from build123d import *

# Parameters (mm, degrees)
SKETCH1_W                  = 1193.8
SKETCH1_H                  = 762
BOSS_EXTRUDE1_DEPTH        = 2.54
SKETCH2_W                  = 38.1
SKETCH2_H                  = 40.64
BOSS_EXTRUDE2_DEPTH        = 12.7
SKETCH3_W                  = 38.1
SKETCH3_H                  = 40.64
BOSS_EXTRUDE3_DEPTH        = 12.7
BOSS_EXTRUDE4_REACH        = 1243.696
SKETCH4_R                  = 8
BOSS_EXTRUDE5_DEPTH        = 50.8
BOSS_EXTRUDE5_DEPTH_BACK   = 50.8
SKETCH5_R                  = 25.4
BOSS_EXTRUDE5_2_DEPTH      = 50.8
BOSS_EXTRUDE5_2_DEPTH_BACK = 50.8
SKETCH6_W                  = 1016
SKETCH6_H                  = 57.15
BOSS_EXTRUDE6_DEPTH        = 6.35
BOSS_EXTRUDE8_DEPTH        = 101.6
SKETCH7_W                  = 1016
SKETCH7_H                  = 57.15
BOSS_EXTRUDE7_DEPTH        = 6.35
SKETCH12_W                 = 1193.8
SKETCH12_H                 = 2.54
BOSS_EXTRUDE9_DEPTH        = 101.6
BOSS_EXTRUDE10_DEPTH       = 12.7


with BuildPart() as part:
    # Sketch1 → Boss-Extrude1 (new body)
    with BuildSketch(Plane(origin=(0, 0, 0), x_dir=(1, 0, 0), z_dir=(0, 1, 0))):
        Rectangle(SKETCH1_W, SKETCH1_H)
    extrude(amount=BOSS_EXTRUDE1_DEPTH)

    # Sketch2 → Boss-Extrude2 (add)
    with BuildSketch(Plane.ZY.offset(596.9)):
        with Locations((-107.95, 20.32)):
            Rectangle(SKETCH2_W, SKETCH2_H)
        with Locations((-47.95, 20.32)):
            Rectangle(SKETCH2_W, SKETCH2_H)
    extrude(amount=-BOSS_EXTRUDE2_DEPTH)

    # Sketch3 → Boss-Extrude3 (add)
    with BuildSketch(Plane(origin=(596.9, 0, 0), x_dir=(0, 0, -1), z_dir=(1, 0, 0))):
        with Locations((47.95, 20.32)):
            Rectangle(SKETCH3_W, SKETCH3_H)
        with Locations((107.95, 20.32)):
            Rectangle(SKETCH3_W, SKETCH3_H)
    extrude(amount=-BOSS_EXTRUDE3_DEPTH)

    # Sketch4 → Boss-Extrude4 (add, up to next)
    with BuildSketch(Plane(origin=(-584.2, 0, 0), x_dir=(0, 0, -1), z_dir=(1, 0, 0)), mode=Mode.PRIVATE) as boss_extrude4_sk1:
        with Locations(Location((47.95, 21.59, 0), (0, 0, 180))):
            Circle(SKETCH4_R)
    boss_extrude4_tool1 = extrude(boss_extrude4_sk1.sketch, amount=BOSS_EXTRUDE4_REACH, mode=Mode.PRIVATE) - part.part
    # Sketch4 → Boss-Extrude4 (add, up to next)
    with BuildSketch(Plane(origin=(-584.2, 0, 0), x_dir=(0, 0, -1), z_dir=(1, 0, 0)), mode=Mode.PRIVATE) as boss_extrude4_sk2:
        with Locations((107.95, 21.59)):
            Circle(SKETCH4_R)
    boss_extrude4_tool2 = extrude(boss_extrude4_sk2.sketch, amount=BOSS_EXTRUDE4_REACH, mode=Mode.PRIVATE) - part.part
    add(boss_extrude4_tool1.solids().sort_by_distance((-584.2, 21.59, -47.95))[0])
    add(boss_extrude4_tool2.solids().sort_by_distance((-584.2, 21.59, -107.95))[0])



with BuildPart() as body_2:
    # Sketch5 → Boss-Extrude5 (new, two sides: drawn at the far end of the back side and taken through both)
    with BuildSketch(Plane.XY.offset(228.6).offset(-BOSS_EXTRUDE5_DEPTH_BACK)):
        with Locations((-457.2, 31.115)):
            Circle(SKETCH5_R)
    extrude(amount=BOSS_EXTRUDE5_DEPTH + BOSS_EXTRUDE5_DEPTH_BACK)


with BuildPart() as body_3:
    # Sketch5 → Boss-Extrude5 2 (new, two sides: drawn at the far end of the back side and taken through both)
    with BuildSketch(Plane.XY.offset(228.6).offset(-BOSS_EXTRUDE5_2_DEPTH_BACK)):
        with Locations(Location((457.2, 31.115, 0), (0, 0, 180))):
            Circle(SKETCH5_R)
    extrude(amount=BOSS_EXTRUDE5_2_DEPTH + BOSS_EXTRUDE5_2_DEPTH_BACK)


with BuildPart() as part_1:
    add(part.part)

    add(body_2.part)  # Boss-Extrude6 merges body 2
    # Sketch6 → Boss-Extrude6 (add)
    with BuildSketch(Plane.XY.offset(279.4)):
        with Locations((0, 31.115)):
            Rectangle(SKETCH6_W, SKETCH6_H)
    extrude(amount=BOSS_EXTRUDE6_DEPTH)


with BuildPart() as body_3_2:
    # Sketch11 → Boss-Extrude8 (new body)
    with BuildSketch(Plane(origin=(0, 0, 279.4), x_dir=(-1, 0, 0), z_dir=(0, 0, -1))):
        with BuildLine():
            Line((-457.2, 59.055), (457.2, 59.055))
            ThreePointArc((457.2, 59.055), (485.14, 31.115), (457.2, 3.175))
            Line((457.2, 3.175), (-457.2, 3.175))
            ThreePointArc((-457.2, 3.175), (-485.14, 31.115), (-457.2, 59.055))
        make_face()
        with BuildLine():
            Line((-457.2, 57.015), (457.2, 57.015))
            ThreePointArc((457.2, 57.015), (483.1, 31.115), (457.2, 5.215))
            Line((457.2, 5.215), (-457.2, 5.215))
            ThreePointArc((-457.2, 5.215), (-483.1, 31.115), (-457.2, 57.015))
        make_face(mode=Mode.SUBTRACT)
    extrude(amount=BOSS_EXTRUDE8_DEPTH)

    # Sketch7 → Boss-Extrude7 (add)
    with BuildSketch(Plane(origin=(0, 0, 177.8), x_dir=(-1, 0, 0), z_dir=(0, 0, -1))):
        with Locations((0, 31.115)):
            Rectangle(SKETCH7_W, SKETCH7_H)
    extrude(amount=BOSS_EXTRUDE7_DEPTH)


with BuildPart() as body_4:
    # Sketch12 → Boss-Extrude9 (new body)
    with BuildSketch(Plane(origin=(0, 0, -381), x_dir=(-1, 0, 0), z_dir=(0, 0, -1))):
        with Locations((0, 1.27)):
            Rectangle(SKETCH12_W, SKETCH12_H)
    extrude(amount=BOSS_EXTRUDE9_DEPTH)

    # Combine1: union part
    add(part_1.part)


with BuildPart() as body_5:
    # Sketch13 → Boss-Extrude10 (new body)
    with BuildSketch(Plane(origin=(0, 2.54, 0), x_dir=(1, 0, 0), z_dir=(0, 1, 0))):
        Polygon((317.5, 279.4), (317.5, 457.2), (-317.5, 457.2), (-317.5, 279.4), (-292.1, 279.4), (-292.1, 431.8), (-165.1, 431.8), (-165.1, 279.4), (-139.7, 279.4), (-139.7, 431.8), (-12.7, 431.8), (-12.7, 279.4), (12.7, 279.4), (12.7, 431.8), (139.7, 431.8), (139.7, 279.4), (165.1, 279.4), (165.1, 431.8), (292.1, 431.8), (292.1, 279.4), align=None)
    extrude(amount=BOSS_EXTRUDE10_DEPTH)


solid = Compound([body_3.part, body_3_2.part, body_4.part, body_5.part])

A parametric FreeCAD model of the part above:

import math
import FreeCAD as App
import Part
import Sketcher
Q = App.Units.Quantity

doc = App.newDocument("Part")
body = doc.addObject("PartDesign::Body", "Body")

# Sketch on XZ plane
sketch1 = doc.addObject("Sketcher::SketchObject", "Sketch")
body.addObject(sketch1)
sketch1.AttachmentSupport = (doc.XZ_Plane, [""])
sketch1.MapMode = "FlatFace"
sketch1.addGeometry([
    Part.LineSegment(App.Vector(-597, -381, 0), App.Vector(-597, 381, 0)),
    Part.LineSegment(App.Vector(-597, 381, 0), App.Vector(597, 381, 0)),
    Part.LineSegment(App.Vector(597, 381, 0), App.Vector(597, -381, 0)),
    Part.LineSegment(App.Vector(597, -381, 0), App.Vector(-597, -381, 0)),
], False)
sketch1.addConstraint([
    Sketcher.Constraint("Coincident", 0, 2, 1, 1),
    Sketcher.Constraint("Coincident", 1, 2, 2, 1),
    Sketcher.Constraint("Coincident", 2, 2, 3, 1),
    Sketcher.Constraint("Coincident", 3, 2, 0, 1),
    Sketcher.Constraint("Vertical", 0),
    Sketcher.Constraint("Horizontal", 1),
    Sketcher.Constraint("Vertical", 2),
    Sketcher.Constraint("Horizontal", 3),
    Sketcher.Constraint("Symmetric", 0, 2, 2, 2, -1, 1),
    Sketcher.Constraint("DistanceX", 1, 1, 1, 2, Q("47 in")),
    Sketcher.Constraint("DistanceY", 0, 1, 0, 2, Q("30 in")),
])
pad1 = doc.addObject("PartDesign::Pad", "Pad")
body.addObject(pad1)
pad1.Profile = sketch1
pad1.Length = Q("0.1 in")
pad1.Reversed = True

# Sketch on YZ plane
sketch2 = doc.addObject("Sketcher::SketchObject", "Sketch001")
body.addObject(sketch2)
sketch2.AttachmentSupport = (doc.YZ_Plane, [""])
sketch2.MapMode = "FlatFace"
sketch2.AttachmentOffset = App.Placement(App.Vector(0, 0, -23.5 * 25.4), App.Rotation())
sketch2.addGeometry([
    Part.LineSegment(App.Vector(41, -127, 0), App.Vector(0, -127, 0)),  # 0
    Part.LineSegment(App.Vector(0, -127, 0), App.Vector(0, -89, 0)),  # 1
    Part.LineSegment(App.Vector(0, -89, 0), App.Vector(41, -89, 0)),  # 2
    Part.LineSegment(App.Vector(41, -89, 0), App.Vector(41, -127, 0)),  # 3
    Part.LineSegment(App.Vector(41, -67, 0), App.Vector(0, -67, 0)),  # 4
    Part.LineSegment(App.Vector(0, -67, 0), App.Vector(0, -29, 0)),  # 5
    Part.LineSegment(App.Vector(0, -29, 0), App.Vector(41, -29, 0)),  # 6
    Part.LineSegment(App.Vector(41, -29, 0), App.Vector(41, -67, 0)),  # 7
], False)
sketch2.addConstraint([
    Sketcher.Constraint("Coincident", 0, 2, 1, 1),
    Sketcher.Constraint("Coincident", 1, 2, 2, 1),
    Sketcher.Constraint("Coincident", 2, 2, 3, 1),
    Sketcher.Constraint("Coincident", 3, 2, 0, 1),
    Sketcher.Constraint("Coincident", 4, 2, 5, 1),
    Sketcher.Constraint("Coincident", 5, 2, 6, 1),
    Sketcher.Constraint("Coincident", 6, 2, 7, 1),
    Sketcher.Constraint("Coincident", 7, 2, 4, 1),
    Sketcher.Constraint("Horizontal", 0),
    Sketcher.Constraint("Vertical", 1),
    Sketcher.Constraint("Horizontal", 2),
    Sketcher.Constraint("Vertical", 3),
    Sketcher.Constraint("Horizontal", 4),
    Sketcher.Constraint("Vertical", 5),
    Sketcher.Constraint("Horizontal", 6),
    Sketcher.Constraint("Vertical", 7),
    Sketcher.Constraint("PointOnObject", 0, 2, -2),
    Sketcher.Constraint("PointOnObject", 4, 2, -2),
    Sketcher.Constraint("Vertical", 3, 2, 6, 2),
    Sketcher.Constraint("Equal", 3, 5),
    Sketcher.Constraint("DistanceX", 0, 2, 0, 1, Q("1.6 in")),
    Sketcher.Constraint("DistanceY", 1, 1, 1, 2, Q("1.5 in")),
    Sketcher.Constraint("DistanceY", 0, 2, -1, 1, Q("5 in")),
    Sketcher.Constraint("DistanceY", 4, 2, -1, 1, 67.0),
])
pad2 = doc.addObject("PartDesign::Pad", "Pad001")
body.addObject(pad2)
pad2.Profile = sketch2
pad2.Length = Q("0.5 in")

# Sketch on YZ plane
sketch3 = doc.addObject("Sketcher::SketchObject", "Sketch002")
body.addObject(sketch3)
sketch3.AttachmentSupport = (doc.YZ_Plane, [""])
sketch3.MapMode = "FlatFace"
sketch3.AttachmentOffset = App.Placement(App.Vector(0, 0, 23.5 * 25.4), App.Rotation())
sketch3.addGeometry([
    Part.LineSegment(App.Vector(41, -29, 0), App.Vector(0, -29, 0)),  # 0
    Part.LineSegment(App.Vector(0, -29, 0), App.Vector(0, -67, 0)),  # 1
    Part.LineSegment(App.Vector(0, -67, 0), App.Vector(41, -67, 0)),  # 2
    Part.LineSegment(App.Vector(41, -67, 0), App.Vector(41, -29, 0)),  # 3
    Part.LineSegment(App.Vector(41, -89, 0), App.Vector(0, -89, 0)),  # 4
    Part.LineSegment(App.Vector(0, -89, 0), App.Vector(0, -127, 0)),  # 5
    Part.LineSegment(App.Vector(0, -127, 0), App.Vector(41, -127, 0)),  # 6
    Part.LineSegment(App.Vector(41, -127, 0), App.Vector(41, -89, 0)),  # 7
], False)
sketch3.addConstraint([
    Sketcher.Constraint("Coincident", 0, 2, 1, 1),
    Sketcher.Constraint("Coincident", 1, 2, 2, 1),
    Sketcher.Constraint("Coincident", 2, 2, 3, 1),
    Sketcher.Constraint("Coincident", 3, 2, 0, 1),
    Sketcher.Constraint("Coincident", 4, 2, 5, 1),
    Sketcher.Constraint("Coincident", 5, 2, 6, 1),
    Sketcher.Constraint("Coincident", 6, 2, 7, 1),
    Sketcher.Constraint("Coincident", 7, 2, 4, 1),
    Sketcher.Constraint("Horizontal", 0),
    Sketcher.Constraint("Vertical", 1),
    Sketcher.Constraint("Horizontal", 2),
    Sketcher.Constraint("Vertical", 3),
    Sketcher.Constraint("Horizontal", 4),
    Sketcher.Constraint("Vertical", 5),
    Sketcher.Constraint("Horizontal", 6),
    Sketcher.Constraint("Vertical", 7),
    Sketcher.Constraint("PointOnObject", 0, 2, -2),
    Sketcher.Constraint("PointOnObject", 4, 2, -2),
    Sketcher.Constraint("Vertical", 3, 2, 6, 2),
    Sketcher.Constraint("Equal", 3, 5),
    Sketcher.Constraint("DistanceX", 0, 2, 0, 1, Q("1.6 in")),
    Sketcher.Constraint("DistanceY", 1, 2, 1, 1, Q("1.5 in")),
    Sketcher.Constraint("DistanceY", 5, 2, -1, 1, Q("5 in")),
    Sketcher.Constraint("DistanceY", 0, 2, -1, 1, 28.9),
])
pad3 = doc.addObject("PartDesign::Pad", "Pad002")
body.addObject(pad3)
pad3.Profile = sketch3
pad3.Length = Q("0.5 in")
pad3.Reversed = True

# Sketch on YZ plane
sketch4 = doc.addObject("Sketcher::SketchObject", "Sketch003")
body.addObject(sketch4)
sketch4.AttachmentSupport = (doc.YZ_Plane, [""])
sketch4.MapMode = "FlatFace"
sketch4.AttachmentOffset = App.Placement(App.Vector(0, 0, -23 * 25.4), App.Rotation())
sketch4.addGeometry(Part.Circle(App.Vector(22, -48, 0), App.Vector(0, 0, 1), 8), False)
sketch4.addConstraint([
    Sketcher.Constraint("Diameter", 0, 16.0),
    Sketcher.Constraint("DistanceX", -1, 1, 0, 3, Q("0.85 in")),
    Sketcher.Constraint("DistanceY", 0, 3, -1, 1, 47.95),
])
pad4 = doc.addObject("PartDesign::Pad", "Pad003")
body.addObject(pad4)
pad4.Profile = sketch4
pad4.Type = "UpToFirst"

# Sketch on YZ plane
sketch5 = doc.addObject("Sketcher::SketchObject", "Sketch004")
body.addObject(sketch5)
sketch5.AttachmentSupport = (doc.YZ_Plane, [""])
sketch5.MapMode = "FlatFace"
sketch5.AttachmentOffset = App.Placement(App.Vector(0, 0, -23 * 25.4), App.Rotation())
sketch5.addGeometry(Part.Circle(App.Vector(22, -108, 0), App.Vector(0, 0, 1), 8), False)
sketch5.addConstraint([
    Sketcher.Constraint("Diameter", 0, 16.0),
    Sketcher.Constraint("DistanceX", -1, 1, 0, 3, Q("0.85 in")),
    Sketcher.Constraint("DistanceY", 0, 3, -1, 1, Q("4.25 in")),
])
pad5 = doc.addObject("PartDesign::Pad", "Pad004")
body.addObject(pad5)
pad5.Profile = sketch5
pad5.Type = "UpToFirst"
body2 = doc.addObject("PartDesign::Body", "Body001")

# Sketch on XY plane
sketch6 = doc.addObject("Sketcher::SketchObject", "Sketch005")
body2.addObject(sketch6)
sketch6.AttachmentSupport = (doc.getObject("XY_Plane001"), [""])
sketch6.MapMode = "FlatFace"
sketch6.AttachmentOffset = App.Placement(App.Vector(0, 0, 9 * 25.4), App.Rotation())
sketch6.addGeometry(Part.Circle(App.Vector(-457, 31, 0), App.Vector(0, 0, 1), 25), False)
sketch6.addConstraint([
    Sketcher.Constraint("Diameter", 0, Q("2 in")),
    Sketcher.Constraint("DistanceX", 0, 3, -1, 1, Q("18 in")),
    Sketcher.Constraint("DistanceY", -1, 1, 0, 3, Q("1.225 in")),
])
pad6 = doc.addObject("PartDesign::Pad", "Pad005")
body2.addObject(pad6)
pad6.Profile = sketch6
pad6.Type = "TwoLengths"
pad6.Length = Q("2 in")
pad6.Length2 = Q("2 in")
body3 = doc.addObject("PartDesign::Body", "Body002")

# Sketch on XY plane
sketch7 = doc.addObject("Sketcher::SketchObject", "Sketch006")
body3.addObject(sketch7)
sketch7.AttachmentSupport = (doc.getObject("XY_Plane002"), [""])
sketch7.MapMode = "FlatFace"
sketch7.AttachmentOffset = App.Placement(App.Vector(0, 0, 9 * 25.4), App.Rotation())
sketch7.addGeometry(Part.Circle(App.Vector(457, 31, 0), App.Vector(0, 0, 1), 25), False)
sketch7.addConstraint([
    Sketcher.Constraint("Diameter", 0, Q("2 in")),
    Sketcher.Constraint("DistanceX", -1, 1, 0, 3, Q("18 in")),
    Sketcher.Constraint("DistanceY", -1, 1, 0, 3, Q("1.225 in")),
])
pad7 = doc.addObject("PartDesign::Pad", "Pad006")
body3.addObject(pad7)
pad7.Profile = sketch7
pad7.Type = "TwoLengths"
pad7.Length = Q("2 in")
pad7.Length2 = Q("2 in")
body.AllowCompound = True
doc.recompute()

boolean = doc.addObject("PartDesign::Boolean", "Boolean")
body.addObject(boolean)
boolean.Type = "Fuse"
boolean.addObjects([body2])

# Sketch on XY plane
sketch8 = doc.addObject("Sketcher::SketchObject", "Sketch007")
body.addObject(sketch8)
sketch8.AttachmentSupport = (doc.XY_Plane, [""])
sketch8.MapMode = "FlatFace"
sketch8.AttachmentOffset = App.Placement(App.Vector(0, 0, 11 * 25.4), App.Rotation())
sketch8.addGeometry([
    Part.LineSegment(App.Vector(-508, 60, 0), App.Vector(-508, 3, 0)),
    Part.LineSegment(App.Vector(-508, 3, 0), App.Vector(508, 3, 0)),
    Part.LineSegment(App.Vector(508, 3, 0), App.Vector(508, 60, 0)),
    Part.LineSegment(App.Vector(508, 60, 0), App.Vector(-508, 60, 0)),
], False)
sketch8.addConstraint([
    Sketcher.Constraint("Coincident", 0, 2, 1, 1),
    Sketcher.Constraint("Coincident", 1, 2, 2, 1),
    Sketcher.Constraint("Coincident", 2, 2, 3, 1),
    Sketcher.Constraint("Coincident", 3, 2, 0, 1),
    Sketcher.Constraint("Vertical", 0),
    Sketcher.Constraint("Horizontal", 1),
    Sketcher.Constraint("Vertical", 2),
    Sketcher.Constraint("Horizontal", 3),
    Sketcher.Constraint("DistanceX", 1, 1, 1, 2, Q("40 in")),
    Sketcher.Constraint("DistanceX", 0, 2, -1, 1, Q("20 in")),
    Sketcher.Constraint("DistanceY", 0, 2, 0, 1, Q("2.25 in")),
    Sketcher.Constraint("DistanceY", -1, 1, 0, 2, Q("0.1 in")),
])
pad8 = doc.addObject("PartDesign::Pad", "Pad007")
body.addObject(pad8)
pad8.Profile = sketch8
pad8.Length = Q("0.25 in")
body4 = doc.addObject("PartDesign::Body", "Body003")

# Sketch on XY plane
sketch9 = doc.addObject("Sketcher::SketchObject", "Sketch008")
body4.addObject(sketch9)
sketch9.AttachmentSupport = (doc.getObject("XY_Plane003"), [""])
sketch9.MapMode = "FlatFace"
sketch9.AttachmentOffset = App.Placement(App.Vector(0, 0, 11 * 25.4), App.Rotation())
sketch9.addGeometry([
    Part.LineSegment(App.Vector(-457, 59, 0), App.Vector(457, 59, 0)),  # 0
    Part.ArcOfCircle(Part.Circle(App.Vector(457, 31, 0), App.Vector(0, 0, 1), 28), math.radians(-90), math.radians(90)),  # 1
    Part.LineSegment(App.Vector(457, 3, 0), App.Vector(-457, 3, 0)),  # 2
    Part.ArcOfCircle(Part.Circle(App.Vector(-457, 31, 0), App.Vector(0, 0, 1), 28), math.radians(90), math.radians(270)),  # 3
    Part.LineSegment(App.Vector(457, 57, 0), App.Vector(-457, 57, 0)),  # 4
    Part.ArcOfCircle(Part.Circle(App.Vector(-457, 31, 0), App.Vector(0, 0, 1), 26), math.radians(90), math.radians(270)),  # 5
    Part.LineSegment(App.Vector(-457, 5, 0), App.Vector(457, 5, 0)),  # 6
    Part.ArcOfCircle(Part.Circle(App.Vector(457, 31, 0), App.Vector(0, 0, 1), 26), math.radians(-90), math.radians(90)),  # 7
], False)
sketch9.addConstraint([
    Sketcher.Constraint("Tangent", 0, 2, 1, 2),
    Sketcher.Constraint("Tangent", 1, 1, 2, 1),
    Sketcher.Constraint("Tangent", 2, 2, 3, 2),
    Sketcher.Constraint("Tangent", 3, 1, 0, 1),
    Sketcher.Constraint("Tangent", 4, 2, 5, 1),
    Sketcher.Constraint("Tangent", 5, 2, 6, 1),
    Sketcher.Constraint("Tangent", 6, 2, 7, 1),
    Sketcher.Constraint("Tangent", 7, 2, 4, 1),
    Sketcher.Constraint("Horizontal", 0),
    Sketcher.Constraint("Horizontal", 2),
    Sketcher.Constraint("Horizontal", 4),
    Sketcher.Constraint("Horizontal", 6),
    Sketcher.Constraint("Coincident", 5, 3, 3, 3),
    Sketcher.Constraint("Vertical", 7, 3, 0, 2),
    Sketcher.Constraint("Radius", 1, Q("1.1 in")),
    Sketcher.Constraint("DistanceX", 0, 1, 0, 2, Q("36 in")),
    Sketcher.Constraint("DistanceX", -1, 1, 1, 3, Q("18 in")),
    Sketcher.Constraint("Radius", 5, 25.9),
    Sketcher.Constraint("DistanceY", -1, 1, 1, 3, Q("1.225 in")),
])
pad9 = doc.addObject("PartDesign::Pad", "Pad008")
body4.addObject(pad9)
pad9.Profile = sketch9
pad9.Length = Q("4 in")
pad9.Reversed = True

# Sketch on XY plane
sketch10 = doc.addObject("Sketcher::SketchObject", "Sketch009")
body4.addObject(sketch10)
sketch10.AttachmentSupport = (doc.getObject("XY_Plane003"), [""])
sketch10.MapMode = "FlatFace"
sketch10.AttachmentOffset = App.Placement(App.Vector(0, 0, 7 * 25.4), App.Rotation())
sketch10.addGeometry([
    Part.LineSegment(App.Vector(508, 60, 0), App.Vector(508, 3, 0)),
    Part.LineSegment(App.Vector(508, 3, 0), App.Vector(-508, 3, 0)),
    Part.LineSegment(App.Vector(-508, 3, 0), App.Vector(-508, 60, 0)),
    Part.LineSegment(App.Vector(-508, 60, 0), App.Vector(508, 60, 0)),
], False)
sketch10.addConstraint([
    Sketcher.Constraint("Coincident", 0, 2, 1, 1),
    Sketcher.Constraint("Coincident", 1, 2, 2, 1),
    Sketcher.Constraint("Coincident", 2, 2, 3, 1),
    Sketcher.Constraint("Coincident", 3, 2, 0, 1),
    Sketcher.Constraint("Vertical", 0),
    Sketcher.Constraint("Horizontal", 1),
    Sketcher.Constraint("Vertical", 2),
    Sketcher.Constraint("Horizontal", 3),
    Sketcher.Constraint("DistanceX", 1, 2, 1, 1, Q("40 in")),
    Sketcher.Constraint("DistanceX", -1, 1, 0, 2, Q("20 in")),
    Sketcher.Constraint("DistanceY", 0, 2, 0, 1, Q("2.25 in")),
    Sketcher.Constraint("DistanceY", -1, 1, 0, 2, Q("0.1 in")),
])
pad10 = doc.addObject("PartDesign::Pad", "Pad009")
body4.addObject(pad10)
pad10.Profile = sketch10
pad10.Length = Q("0.25 in")
pad10.Reversed = True
body5 = doc.addObject("PartDesign::Body", "Body004")

# Sketch on XY plane
sketch11 = doc.addObject("Sketcher::SketchObject", "Sketch010")
body5.addObject(sketch11)
sketch11.AttachmentSupport = (doc.getObject("XY_Plane004"), [""])
sketch11.MapMode = "FlatFace"
sketch11.AttachmentOffset = App.Placement(App.Vector(0, 0, -15 * 25.4), App.Rotation())
sketch11.addGeometry([
    Part.LineSegment(App.Vector(596.9, 2.5, 0), App.Vector(596.9, 0, 0)),
    Part.LineSegment(App.Vector(596.9, 0, 0), App.Vector(-596.9, 0, 0)),
    Part.LineSegment(App.Vector(-596.9, 0, 0), App.Vector(-596.9, 2.5, 0)),
    Part.LineSegment(App.Vector(-596.9, 2.5, 0), App.Vector(596.9, 2.5, 0)),
], False)
sketch11.addConstraint([
    Sketcher.Constraint("Coincident", 0, 2, 1, 1),
    Sketcher.Constraint("Coincident", 1, 2, 2, 1),
    Sketcher.Constraint("Coincident", 2, 2, 3, 1),
    Sketcher.Constraint("Coincident", 3, 2, 0, 1),
    Sketcher.Constraint("Vertical", 0),
    Sketcher.Constraint("Horizontal", 1),
    Sketcher.Constraint("Vertical", 2),
    Sketcher.Constraint("Horizontal", 3),
    Sketcher.Constraint("Symmetric", 0, 2, 1, 2, -1, 1),
    Sketcher.Constraint("DistanceX", 1, 2, 1, 1, Q("47 in")),
    Sketcher.Constraint("DistanceY", 0, 2, 0, 1, Q("0.1 in")),
])
pad11 = doc.addObject("PartDesign::Pad", "Pad010")
body5.addObject(pad11)
pad11.Profile = sketch11
pad11.Length = Q("4 in")
pad11.Reversed = True
doc.recompute()

boolean2 = doc.addObject("PartDesign::Boolean", "Boolean001")
body5.addObject(boolean2)
boolean2.Type = "Fuse"
boolean2.addObjects([body])
body6 = doc.addObject("PartDesign::Body", "Body005")

# Sketch on XZ plane
sketch12 = doc.addObject("Sketcher::SketchObject", "Sketch011")
body6.addObject(sketch12)
sketch12.AttachmentSupport = (doc.getObject("XZ_Plane005"), [""])
sketch12.MapMode = "FlatFace"
sketch12.AttachmentOffset = App.Placement(App.Vector(0, 0, -0.1 * 25.4), App.Rotation())
sketch12.addGeometry([
    Part.LineSegment(App.Vector(318, -279, 0), App.Vector(318, -457, 0)),  # 0
    Part.LineSegment(App.Vector(318, -457, 0), App.Vector(-318, -457, 0)),  # 1
    Part.LineSegment(App.Vector(-318, -457, 0), App.Vector(-318, -279, 0)),  # 2
    Part.LineSegment(App.Vector(-318, -279, 0), App.Vector(-292, -279, 0)),  # 3
    Part.LineSegment(App.Vector(-292, -279, 0), App.Vector(-292, -432, 0)),  # 4
    Part.LineSegment(App.Vector(-292, -432, 0), App.Vector(-165, -432, 0)),  # 5
    Part.LineSegment(App.Vector(-165, -432, 0), App.Vector(-165, -279, 0)),  # 6
    Part.LineSegment(App.Vector(-165, -279, 0), App.Vector(-140, -279, 0)),  # 7
    Part.LineSegment(App.Vector(-140, -279, 0), App.Vector(-140, -432, 0)),  # 8
    Part.LineSegment(App.Vector(-140, -432, 0), App.Vector(-13, -432, 0)),  # 9
    Part.LineSegment(App.Vector(-13, -432, 0), App.Vector(-13, -279, 0)),  # 10
    Part.LineSegment(App.Vector(-13, -279, 0), App.Vector(13, -279, 0)),  # 11
    Part.LineSegment(App.Vector(13, -279, 0), App.Vector(13, -432, 0)),  # 12
    Part.LineSegment(App.Vector(13, -432, 0), App.Vector(140, -432, 0)),  # 13
    Part.LineSegment(App.Vector(140, -432, 0), App.Vector(140, -279, 0)),  # 14
    Part.LineSegment(App.Vector(140, -279, 0), App.Vector(165, -279, 0)),  # 15
    Part.LineSegment(App.Vector(165, -279, 0), App.Vector(165, -432, 0)),  # 16
    Part.LineSegment(App.Vector(165, -432, 0), App.Vector(292, -432, 0)),  # 17
    Part.LineSegment(App.Vector(292, -432, 0), App.Vector(292, -279, 0)),  # 18
    Part.LineSegment(App.Vector(292, -279, 0), App.Vector(318, -279, 0)),  # 19
], False)
sketch12.addConstraint([
    Sketcher.Constraint("Coincident", 0, 2, 1, 1),
    Sketcher.Constraint("Coincident", 1, 2, 2, 1),
    Sketcher.Constraint("Coincident", 2, 2, 3, 1),
    Sketcher.Constraint("Coincident", 3, 2, 4, 1),
    Sketcher.Constraint("Coincident", 4, 2, 5, 1),
    Sketcher.Constraint("Coincident", 5, 2, 6, 1),
    Sketcher.Constraint("Coincident", 6, 2, 7, 1),
    Sketcher.Constraint("Coincident", 7, 2, 8, 1),
    Sketcher.Constraint("Coincident", 8, 2, 9, 1),
    Sketcher.Constraint("Coincident", 9, 2, 10, 1),
    Sketcher.Constraint("Coincident", 10, 2, 11, 1),
    Sketcher.Constraint("Coincident", 11, 2, 12, 1),
    Sketcher.Constraint("Coincident", 12, 2, 13, 1),
    Sketcher.Constraint("Coincident", 13, 2, 14, 1),
    Sketcher.Constraint("Coincident", 14, 2, 15, 1),
    Sketcher.Constraint("Coincident", 15, 2, 16, 1),
    Sketcher.Constraint("Coincident", 16, 2, 17, 1),
    Sketcher.Constraint("Coincident", 17, 2, 18, 1),
    Sketcher.Constraint("Coincident", 18, 2, 19, 1),
    Sketcher.Constraint("Coincident", 19, 2, 0, 1),
    Sketcher.Constraint("Vertical", 0),
    Sketcher.Constraint("Horizontal", 1),
    Sketcher.Constraint("Vertical", 2),
    Sketcher.Constraint("Horizontal", 3),
    Sketcher.Constraint("Vertical", 4),
    Sketcher.Constraint("Horizontal", 5),
    Sketcher.Constraint("Vertical", 6),
    Sketcher.Constraint("Horizontal", 7),
    Sketcher.Constraint("Vertical", 8),
    Sketcher.Constraint("Horizontal", 9),
    Sketcher.Constraint("Vertical", 10),
    Sketcher.Constraint("Horizontal", 11),
    Sketcher.Constraint("Vertical", 12),
    Sketcher.Constraint("Horizontal", 13),
    Sketcher.Constraint("Vertical", 14),
    Sketcher.Constraint("Horizontal", 15),
    Sketcher.Constraint("Vertical", 16),
    Sketcher.Constraint("Horizontal", 17),
    Sketcher.Constraint("Vertical", 18),
    Sketcher.Constraint("Horizontal", 19),
    Sketcher.Constraint("Symmetric", 9, 2, 12, 2, -2),
    Sketcher.Constraint("Symmetric", 7, 2, 14, 2, -2),
    Sketcher.Constraint("Symmetric", 5, 2, 16, 2, -2),
    Sketcher.Constraint("Symmetric", 3, 2, 18, 2, -2),
    Sketcher.Constraint("Horizontal", 3, 2, 6, 2),
    Sketcher.Constraint("Horizontal", 5, 2, 8, 2),
    Sketcher.Constraint("Horizontal", 7, 2, 10, 2),
    Sketcher.Constraint("Equal", 3, 7),
    Sketcher.Constraint("Equal", 5, 9),
    Sketcher.Constraint("Equal", 7, 11),
    Sketcher.Constraint("Equal", 15, 19),
    Sketcher.Constraint("DistanceX", 1, 2, 1, 1, Q("25 in")),
    Sketcher.Constraint("DistanceX", 3, 1, 3, 2, Q("1 in")),
    Sketcher.Constraint("DistanceY", 0, 2, 0, 1, Q("7 in")),
    Sketcher.Constraint("DistanceY", 4, 2, 4, 1, Q("6 in")),
    Sketcher.Constraint("DistanceY", 0, 2, -1, 1, Q("18 in")),
])
pad12 = doc.addObject("PartDesign::Pad", "Pad011")
body6.addObject(pad12)
pad12.Profile = sketch12
pad12.Length = Q("0.5 in")
pad12.Reversed = True

doc.recompute()
